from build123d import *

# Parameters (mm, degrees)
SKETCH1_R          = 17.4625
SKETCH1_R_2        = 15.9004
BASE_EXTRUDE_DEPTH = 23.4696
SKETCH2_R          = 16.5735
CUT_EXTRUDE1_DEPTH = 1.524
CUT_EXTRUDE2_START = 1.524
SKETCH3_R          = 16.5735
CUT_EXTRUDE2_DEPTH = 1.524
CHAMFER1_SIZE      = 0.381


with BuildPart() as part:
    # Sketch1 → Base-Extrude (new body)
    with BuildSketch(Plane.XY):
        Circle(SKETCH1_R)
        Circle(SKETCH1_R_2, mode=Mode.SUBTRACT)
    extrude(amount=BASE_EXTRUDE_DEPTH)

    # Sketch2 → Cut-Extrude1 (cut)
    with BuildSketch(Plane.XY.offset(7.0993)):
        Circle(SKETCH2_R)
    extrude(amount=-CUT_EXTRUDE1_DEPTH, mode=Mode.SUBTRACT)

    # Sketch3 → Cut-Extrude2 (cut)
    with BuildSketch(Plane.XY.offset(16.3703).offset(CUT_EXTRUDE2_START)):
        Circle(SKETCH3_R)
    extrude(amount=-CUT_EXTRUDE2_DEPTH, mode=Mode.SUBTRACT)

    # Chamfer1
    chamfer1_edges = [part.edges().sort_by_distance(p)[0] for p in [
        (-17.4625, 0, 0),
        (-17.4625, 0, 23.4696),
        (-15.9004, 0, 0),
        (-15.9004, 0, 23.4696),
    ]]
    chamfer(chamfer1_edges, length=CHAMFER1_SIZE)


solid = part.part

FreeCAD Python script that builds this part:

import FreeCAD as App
import Part
import Sketcher

V = App.Vector
Q = App.Units.Quantity


def edges_at(feature, points):
    """Names of the edges that pass closest to the given points."""
    edges = feature.Shape.Edges
    near = lambda p: min(range(len(edges)), key=lambda i: edges[i].distToShape(Part.Vertex(*p))[0])
    return sorted({f"Edge{near(p) + 1}" for p in points})

doc = App.newDocument("Part")
body = doc.addObject("PartDesign::Body", "Body")

# Sketch on XY plane
sketch1 = doc.addObject("Sketcher::SketchObject", "Sketch")
body.addObject(sketch1)
sketch1.AttachmentSupport = (doc.XY_Plane, [""])
sketch1.MapMode = "FlatFace"
sketch1.addGeometry(Part.Circle(V(0, 0, 0), V(0, 0, 1), 17), False)
sketch1.addGeometry(Part.Circle(V(0, 0, 0), V(0, 0, 1), 16), False)
sketch1.addConstraint(Sketcher.Constraint("Coincident", 0, 3, -1, 1))
sketch1.addConstraint(Sketcher.Constraint("Coincident", 1, 3, -1, 1))
sketch1.addConstraint(Sketcher.Constraint("Diameter", 0, Q("1.375 in")))
sketch1.addConstraint(Sketcher.Constraint("Diameter", 1, Q("1.252 in")))
pad1 = doc.addObject("PartDesign::Pad", "Pad")
body.addObject(pad1)
pad1.Profile = sketch1
pad1.Length = Q("0.924 in")

# Sketch on XY plane
sketch2 = doc.addObject("Sketcher::SketchObject", "Sketch001")
body.addObject(sketch2)
sketch2.AttachmentSupport = (doc.XY_Plane, [""])
sketch2.MapMode = "FlatFace"
sketch2.AttachmentOffset = App.Placement(V(0, 0, 0.2795 * 25.4), App.Rotation())
sketch2.addGeometry(Part.Circle(V(0, 0, 0), V(0, 0, 1), 17), False)
sketch2.addConstraint(Sketcher.Constraint("Coincident", 0, 3, -1, 1))
sketch2.addConstraint(Sketcher.Constraint("Diameter", 0, Q("1.305 in")))
pocket1 = doc.addObject("PartDesign::Pocket", "Pocket")
body.addObject(pocket1)
pocket1.Profile = sketch2
pocket1.Length = Q("0.06 in")

# Sketch on XY plane
sketch3 = doc.addObject("Sketcher::SketchObject", "Sketch002")
body.addObject(sketch3)
sketch3.AttachmentSupport = (doc.XY_Plane, [""])
sketch3.MapMode = "FlatFace"
sketch3.AttachmentOffset = App.Placement(V(0, 0, 0.7045 * 25.4), App.Rotation())
sketch3.addGeometry(Part.Circle(V(0, 0, 0), V(0, 0, 1), 17), False)
sketch3.addConstraint(Sketcher.Constraint("Coincident", 0, 3, -1, 1))
sketch3.addConstraint(Sketcher.Constraint("Diameter", 0, Q("1.305 in")))
pocket2 = doc.addObject("PartDesign::Pocket", "Pocket001")
body.addObject(pocket2)
pocket2.Profile = sketch3
pocket2.Length = Q("0.06 in")
doc.recompute()

chamfer = doc.addObject("PartDesign::Chamfer", "Chamfer")
body.addObject(chamfer)
chamfer.Base = (pocket2, edges_at(pocket2, [
    (-17.462, 0, 0),
    (-17.462, 0, 23.47),
    (-15.9, 0, 0),
    (-15.9, 0, 23.47),
]))
chamfer.Size = Q("0.015 in")

doc.recompute()
